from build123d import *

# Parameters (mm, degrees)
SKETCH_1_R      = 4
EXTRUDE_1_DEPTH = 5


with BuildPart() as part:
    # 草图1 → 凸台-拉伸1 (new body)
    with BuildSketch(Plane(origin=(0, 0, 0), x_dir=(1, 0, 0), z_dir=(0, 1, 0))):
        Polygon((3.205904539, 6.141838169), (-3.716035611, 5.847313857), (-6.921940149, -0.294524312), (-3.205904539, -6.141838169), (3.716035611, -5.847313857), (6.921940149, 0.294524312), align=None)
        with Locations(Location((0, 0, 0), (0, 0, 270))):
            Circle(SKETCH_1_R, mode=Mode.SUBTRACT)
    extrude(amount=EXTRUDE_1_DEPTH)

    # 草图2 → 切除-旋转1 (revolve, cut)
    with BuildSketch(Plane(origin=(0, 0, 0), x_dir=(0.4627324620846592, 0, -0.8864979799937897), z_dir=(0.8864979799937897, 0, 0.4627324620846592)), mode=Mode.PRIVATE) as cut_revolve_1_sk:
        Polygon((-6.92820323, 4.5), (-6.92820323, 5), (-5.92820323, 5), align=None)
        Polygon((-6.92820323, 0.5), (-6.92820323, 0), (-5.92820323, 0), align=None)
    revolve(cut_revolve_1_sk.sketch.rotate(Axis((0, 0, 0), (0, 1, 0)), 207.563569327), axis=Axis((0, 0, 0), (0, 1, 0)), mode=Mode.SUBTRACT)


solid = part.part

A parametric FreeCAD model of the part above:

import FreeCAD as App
import Part
import Sketcher
from FreeCAD import Vector
Q = App.Units.Quantity

doc = App.newDocument("Part")
body = doc.addObject("PartDesign::Body", "Body")

sketch1 = doc.addObject("Sketcher::SketchObject", "Sketch")
body.addObject(sketch1)
sketch1.AttachmentSupport = (doc.XZ_Plane, [""])
sketch1.MapMode = "FlatFace"
sketch1.addGeometry([
    Part.LineSegment(Vector(3.2, -6.1, 0), Vector(-3.7, -5.8, 0)),
    Part.LineSegment(Vector(-3.7, -5.8, 0), Vector(-6.9, 0.3, 0)),
    Part.LineSegment(Vector(-6.9, 0.3, 0), Vector(-3.2, 6.1, 0)),
    Part.LineSegment(Vector(-3.2, 6.1, 0), Vector(3.7, 5.8, 0)),
    Part.LineSegment(Vector(3.7, 5.8, 0), Vector(6.9, -0.3, 0)),
    Part.LineSegment(Vector(6.9, -0.3, 0), Vector(3.2, -6.1, 0)),
    Part.Circle(Vector(0, 0, 0), Vector(0, 0, 1), 4),
], False)
sketch1.addConstraint([
    Sketcher.Constraint("Coincident", 0, 2, 1, 1),
    Sketcher.Constraint("Coincident", 1, 2, 2, 1),
    Sketcher.Constraint("Coincident", 2, 2, 3, 1),
    Sketcher.Constraint("Coincident", 3, 2, 4, 1),
    Sketcher.Constraint("Coincident", 4, 2, 5, 1),
    Sketcher.Constraint("Coincident", 5, 2, 0, 1),
    Sketcher.Constraint("Coincident", 6, 3, -1, 1),
    Sketcher.Constraint("Symmetric", 0, 2, 3, 2, -1, 1),
    Sketcher.Constraint("Symmetric", 1, 2, 4, 2, -1, 1),
    Sketcher.Constraint("Symmetric", 2, 2, 5, 2, -1, 1),
    Sketcher.Constraint("Equal", 0, 1),
    Sketcher.Constraint("Equal", 1, 2),
    Sketcher.Constraint("Diameter", 6, Q("8 mm")),
    Sketcher.Constraint("DistanceX", 1, 2, -1, 1, Q("6.92194 mm")),
    Sketcher.Constraint("DistanceY", -1, 1, 2, 2, Q("6.141838 mm")),
    Sketcher.Constraint("DistanceY", 0, 2, 1, 2, Q("6.141838 mm")),
    Sketcher.Constraint("DistanceX", 0, 2, 2, 2, Q("0.510131 mm")),
])
pad1 = doc.addObject("PartDesign::Pad", "Pad")
body.addObject(pad1)
pad1.Profile = sketch1
pad1.Length = 5
pad1.Reversed = True

sketch2 = doc.addObject("Sketcher::SketchObject", "Sketch001")
body.addObject(sketch2)
sketch2.Placement = App.Placement(Vector(0, 0, 0), App.Rotation(Vector(0.462732462, 0, -0.88649798), Vector(0, 1, 0), Vector(0.88649798, 0, 0.462732462), "ZXY"))
sketch2.addGeometry([
    Part.LineSegment(Vector(-6.9, 5, 0), Vector(-6.9, 4.5, 0)),
    Part.LineSegment(Vector(-6.9, 4.5, 0), Vector(-5.9, 5, 0)),
    Part.LineSegment(Vector(-5.9, 5, 0), Vector(-6.9, 5, 0)),
    Part.LineSegment(Vector(-6.9, 0.5, 0), Vector(-6.9, 0, 0)),
    Part.LineSegment(Vector(-6.9, 0, 0), Vector(-5.9, 0, 0)),
    Part.LineSegment(Vector(-5.9, 0, 0), Vector(-6.9, 0.5, 0)),
], False)
sketch2.addConstraint([
    Sketcher.Constraint("Coincident", 0, 2, 1, 1),
    Sketcher.Constraint("Coincident", 1, 2, 2, 1),
    Sketcher.Constraint("Coincident", 2, 2, 0, 1),
    Sketcher.Constraint("Coincident", 3, 2, 4, 1),
    Sketcher.Constraint("Coincident", 4, 2, 5, 1),
    Sketcher.Constraint("Coincident", 5, 2, 3, 1),
    Sketcher.Constraint("Vertical", 0),
    Sketcher.Constraint("Horizontal", 2),
    Sketcher.Constraint("Vertical", 3),
    Sketcher.Constraint("Horizontal", 4),
    Sketcher.Constraint("PointOnObject", 3, 2, -1),
    Sketcher.Constraint("Vertical", 2, 2, 3, 2),
    Sketcher.Constraint("Vertical", 1, 2, 4, 2),
    Sketcher.Constraint("Equal", 0, 3),
    Sketcher.Constraint("DistanceX", 2, 2, 2, 1, Q("1 mm")),
    Sketcher.Constraint("DistanceY", 0, 2, 0, 1, Q("0.5 mm")),
    Sketcher.Constraint("DistanceY", -1, 1, 1, 2, Q("5 mm")),
    Sketcher.Constraint("DistanceX", 0, 2, -1, 1, Q("6.928203 mm")),
])
groove = doc.addObject("PartDesign::Groove", "Groove")
body.addObject(groove)
groove.Profile = sketch2
groove.ReferenceAxis = (sketch2, ["V_Axis"])
groove.Angle = 360

doc.recompute()
